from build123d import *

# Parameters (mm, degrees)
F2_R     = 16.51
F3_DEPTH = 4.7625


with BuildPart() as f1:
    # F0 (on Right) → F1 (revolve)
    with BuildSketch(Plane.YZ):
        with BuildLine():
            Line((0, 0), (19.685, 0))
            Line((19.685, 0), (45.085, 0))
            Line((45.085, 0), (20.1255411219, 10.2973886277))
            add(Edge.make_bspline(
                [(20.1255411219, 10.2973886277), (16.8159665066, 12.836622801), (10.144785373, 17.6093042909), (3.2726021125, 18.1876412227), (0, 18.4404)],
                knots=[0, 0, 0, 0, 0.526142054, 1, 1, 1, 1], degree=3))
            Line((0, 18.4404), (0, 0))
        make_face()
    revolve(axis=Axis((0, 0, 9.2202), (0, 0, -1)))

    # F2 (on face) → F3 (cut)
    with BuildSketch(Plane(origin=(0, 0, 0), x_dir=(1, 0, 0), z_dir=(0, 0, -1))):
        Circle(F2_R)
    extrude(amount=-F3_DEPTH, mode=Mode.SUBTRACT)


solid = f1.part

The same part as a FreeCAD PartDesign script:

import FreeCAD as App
import Part
import Sketcher

V = App.Vector
Q = App.Units.Quantity

doc = App.newDocument("Part")
body = doc.addObject("PartDesign::Body", "Body")

# Sketch on YZ plane
sketch1 = doc.addObject("Sketcher::SketchObject", "Sketch")
body.addObject(sketch1)
sketch1.AttachmentSupport = (doc.YZ_Plane, [""])
sketch1.MapMode = "FlatFace"
sketch1.addGeometry([
    Part.LineSegment(V(0, 0, 0), V(45.085, 0, 0)),
    Part.LineSegment(V(45.085, 0, 0), V(20.125541, 10.297389, 0)),
    Part.BSplineCurve([V(20.125541, 10.297389, 0), V(16.815967, 12.836623, 0), V(10.144785, 17.609304, 0), V(3.272602, 18.187641, 0), V(0, 18.4404, 0)], [4, 1, 4], [0, 0.526142054, 1], False, 3, [1, 1, 1, 1, 1], False),
    Part.LineSegment(V(0, 18.4404, 0), V(0, 0, 0)),
], False)
sketch1.addConstraint([
    Sketcher.Constraint("Block", 2),
    Sketcher.Constraint("Coincident", 0, 2, 1, 1),
    Sketcher.Constraint("Coincident", 1, 2, 2, 1),
    Sketcher.Constraint("Coincident", 2, 2, 3, 1),
    Sketcher.Constraint("Coincident", 3, 2, 0, 1),
    Sketcher.Constraint("Horizontal", 0),
    Sketcher.Constraint("Vertical", 3),
    Sketcher.Constraint("PointOnObject", 0, 2, -1),
    Sketcher.Constraint("DistanceX", 0, 1, 0, 2, Q("1.775 in")),
])
revolution = doc.addObject("PartDesign::Revolution", "Revolution")
body.addObject(revolution)
revolution.Profile = sketch1
revolution.ReferenceAxis = (sketch1, ["V_Axis"])
revolution.Angle = 360

# Sketch on XY plane
sketch2 = doc.addObject("Sketcher::SketchObject", "Sketch001")
body.addObject(sketch2)
sketch2.AttachmentSupport = (doc.XY_Plane, [""])
sketch2.MapMode = "FlatFace"
sketch2.addGeometry(Part.Circle(V(0, 0, 0), V(0, 0, 1), 16.51), False)
sketch2.addConstraint([
    Sketcher.Constraint("Coincident", 0, 3, -1, 1),
    Sketcher.Constraint("Diameter", 0, Q("1.3 in")),
])
pocket1 = doc.addObject("PartDesign::Pocket", "Pocket")
body.addObject(pocket1)
pocket1.Profile = sketch2
pocket1.Length = Q("0.1875 in")
pocket1.Reversed = True

doc.recompute()
